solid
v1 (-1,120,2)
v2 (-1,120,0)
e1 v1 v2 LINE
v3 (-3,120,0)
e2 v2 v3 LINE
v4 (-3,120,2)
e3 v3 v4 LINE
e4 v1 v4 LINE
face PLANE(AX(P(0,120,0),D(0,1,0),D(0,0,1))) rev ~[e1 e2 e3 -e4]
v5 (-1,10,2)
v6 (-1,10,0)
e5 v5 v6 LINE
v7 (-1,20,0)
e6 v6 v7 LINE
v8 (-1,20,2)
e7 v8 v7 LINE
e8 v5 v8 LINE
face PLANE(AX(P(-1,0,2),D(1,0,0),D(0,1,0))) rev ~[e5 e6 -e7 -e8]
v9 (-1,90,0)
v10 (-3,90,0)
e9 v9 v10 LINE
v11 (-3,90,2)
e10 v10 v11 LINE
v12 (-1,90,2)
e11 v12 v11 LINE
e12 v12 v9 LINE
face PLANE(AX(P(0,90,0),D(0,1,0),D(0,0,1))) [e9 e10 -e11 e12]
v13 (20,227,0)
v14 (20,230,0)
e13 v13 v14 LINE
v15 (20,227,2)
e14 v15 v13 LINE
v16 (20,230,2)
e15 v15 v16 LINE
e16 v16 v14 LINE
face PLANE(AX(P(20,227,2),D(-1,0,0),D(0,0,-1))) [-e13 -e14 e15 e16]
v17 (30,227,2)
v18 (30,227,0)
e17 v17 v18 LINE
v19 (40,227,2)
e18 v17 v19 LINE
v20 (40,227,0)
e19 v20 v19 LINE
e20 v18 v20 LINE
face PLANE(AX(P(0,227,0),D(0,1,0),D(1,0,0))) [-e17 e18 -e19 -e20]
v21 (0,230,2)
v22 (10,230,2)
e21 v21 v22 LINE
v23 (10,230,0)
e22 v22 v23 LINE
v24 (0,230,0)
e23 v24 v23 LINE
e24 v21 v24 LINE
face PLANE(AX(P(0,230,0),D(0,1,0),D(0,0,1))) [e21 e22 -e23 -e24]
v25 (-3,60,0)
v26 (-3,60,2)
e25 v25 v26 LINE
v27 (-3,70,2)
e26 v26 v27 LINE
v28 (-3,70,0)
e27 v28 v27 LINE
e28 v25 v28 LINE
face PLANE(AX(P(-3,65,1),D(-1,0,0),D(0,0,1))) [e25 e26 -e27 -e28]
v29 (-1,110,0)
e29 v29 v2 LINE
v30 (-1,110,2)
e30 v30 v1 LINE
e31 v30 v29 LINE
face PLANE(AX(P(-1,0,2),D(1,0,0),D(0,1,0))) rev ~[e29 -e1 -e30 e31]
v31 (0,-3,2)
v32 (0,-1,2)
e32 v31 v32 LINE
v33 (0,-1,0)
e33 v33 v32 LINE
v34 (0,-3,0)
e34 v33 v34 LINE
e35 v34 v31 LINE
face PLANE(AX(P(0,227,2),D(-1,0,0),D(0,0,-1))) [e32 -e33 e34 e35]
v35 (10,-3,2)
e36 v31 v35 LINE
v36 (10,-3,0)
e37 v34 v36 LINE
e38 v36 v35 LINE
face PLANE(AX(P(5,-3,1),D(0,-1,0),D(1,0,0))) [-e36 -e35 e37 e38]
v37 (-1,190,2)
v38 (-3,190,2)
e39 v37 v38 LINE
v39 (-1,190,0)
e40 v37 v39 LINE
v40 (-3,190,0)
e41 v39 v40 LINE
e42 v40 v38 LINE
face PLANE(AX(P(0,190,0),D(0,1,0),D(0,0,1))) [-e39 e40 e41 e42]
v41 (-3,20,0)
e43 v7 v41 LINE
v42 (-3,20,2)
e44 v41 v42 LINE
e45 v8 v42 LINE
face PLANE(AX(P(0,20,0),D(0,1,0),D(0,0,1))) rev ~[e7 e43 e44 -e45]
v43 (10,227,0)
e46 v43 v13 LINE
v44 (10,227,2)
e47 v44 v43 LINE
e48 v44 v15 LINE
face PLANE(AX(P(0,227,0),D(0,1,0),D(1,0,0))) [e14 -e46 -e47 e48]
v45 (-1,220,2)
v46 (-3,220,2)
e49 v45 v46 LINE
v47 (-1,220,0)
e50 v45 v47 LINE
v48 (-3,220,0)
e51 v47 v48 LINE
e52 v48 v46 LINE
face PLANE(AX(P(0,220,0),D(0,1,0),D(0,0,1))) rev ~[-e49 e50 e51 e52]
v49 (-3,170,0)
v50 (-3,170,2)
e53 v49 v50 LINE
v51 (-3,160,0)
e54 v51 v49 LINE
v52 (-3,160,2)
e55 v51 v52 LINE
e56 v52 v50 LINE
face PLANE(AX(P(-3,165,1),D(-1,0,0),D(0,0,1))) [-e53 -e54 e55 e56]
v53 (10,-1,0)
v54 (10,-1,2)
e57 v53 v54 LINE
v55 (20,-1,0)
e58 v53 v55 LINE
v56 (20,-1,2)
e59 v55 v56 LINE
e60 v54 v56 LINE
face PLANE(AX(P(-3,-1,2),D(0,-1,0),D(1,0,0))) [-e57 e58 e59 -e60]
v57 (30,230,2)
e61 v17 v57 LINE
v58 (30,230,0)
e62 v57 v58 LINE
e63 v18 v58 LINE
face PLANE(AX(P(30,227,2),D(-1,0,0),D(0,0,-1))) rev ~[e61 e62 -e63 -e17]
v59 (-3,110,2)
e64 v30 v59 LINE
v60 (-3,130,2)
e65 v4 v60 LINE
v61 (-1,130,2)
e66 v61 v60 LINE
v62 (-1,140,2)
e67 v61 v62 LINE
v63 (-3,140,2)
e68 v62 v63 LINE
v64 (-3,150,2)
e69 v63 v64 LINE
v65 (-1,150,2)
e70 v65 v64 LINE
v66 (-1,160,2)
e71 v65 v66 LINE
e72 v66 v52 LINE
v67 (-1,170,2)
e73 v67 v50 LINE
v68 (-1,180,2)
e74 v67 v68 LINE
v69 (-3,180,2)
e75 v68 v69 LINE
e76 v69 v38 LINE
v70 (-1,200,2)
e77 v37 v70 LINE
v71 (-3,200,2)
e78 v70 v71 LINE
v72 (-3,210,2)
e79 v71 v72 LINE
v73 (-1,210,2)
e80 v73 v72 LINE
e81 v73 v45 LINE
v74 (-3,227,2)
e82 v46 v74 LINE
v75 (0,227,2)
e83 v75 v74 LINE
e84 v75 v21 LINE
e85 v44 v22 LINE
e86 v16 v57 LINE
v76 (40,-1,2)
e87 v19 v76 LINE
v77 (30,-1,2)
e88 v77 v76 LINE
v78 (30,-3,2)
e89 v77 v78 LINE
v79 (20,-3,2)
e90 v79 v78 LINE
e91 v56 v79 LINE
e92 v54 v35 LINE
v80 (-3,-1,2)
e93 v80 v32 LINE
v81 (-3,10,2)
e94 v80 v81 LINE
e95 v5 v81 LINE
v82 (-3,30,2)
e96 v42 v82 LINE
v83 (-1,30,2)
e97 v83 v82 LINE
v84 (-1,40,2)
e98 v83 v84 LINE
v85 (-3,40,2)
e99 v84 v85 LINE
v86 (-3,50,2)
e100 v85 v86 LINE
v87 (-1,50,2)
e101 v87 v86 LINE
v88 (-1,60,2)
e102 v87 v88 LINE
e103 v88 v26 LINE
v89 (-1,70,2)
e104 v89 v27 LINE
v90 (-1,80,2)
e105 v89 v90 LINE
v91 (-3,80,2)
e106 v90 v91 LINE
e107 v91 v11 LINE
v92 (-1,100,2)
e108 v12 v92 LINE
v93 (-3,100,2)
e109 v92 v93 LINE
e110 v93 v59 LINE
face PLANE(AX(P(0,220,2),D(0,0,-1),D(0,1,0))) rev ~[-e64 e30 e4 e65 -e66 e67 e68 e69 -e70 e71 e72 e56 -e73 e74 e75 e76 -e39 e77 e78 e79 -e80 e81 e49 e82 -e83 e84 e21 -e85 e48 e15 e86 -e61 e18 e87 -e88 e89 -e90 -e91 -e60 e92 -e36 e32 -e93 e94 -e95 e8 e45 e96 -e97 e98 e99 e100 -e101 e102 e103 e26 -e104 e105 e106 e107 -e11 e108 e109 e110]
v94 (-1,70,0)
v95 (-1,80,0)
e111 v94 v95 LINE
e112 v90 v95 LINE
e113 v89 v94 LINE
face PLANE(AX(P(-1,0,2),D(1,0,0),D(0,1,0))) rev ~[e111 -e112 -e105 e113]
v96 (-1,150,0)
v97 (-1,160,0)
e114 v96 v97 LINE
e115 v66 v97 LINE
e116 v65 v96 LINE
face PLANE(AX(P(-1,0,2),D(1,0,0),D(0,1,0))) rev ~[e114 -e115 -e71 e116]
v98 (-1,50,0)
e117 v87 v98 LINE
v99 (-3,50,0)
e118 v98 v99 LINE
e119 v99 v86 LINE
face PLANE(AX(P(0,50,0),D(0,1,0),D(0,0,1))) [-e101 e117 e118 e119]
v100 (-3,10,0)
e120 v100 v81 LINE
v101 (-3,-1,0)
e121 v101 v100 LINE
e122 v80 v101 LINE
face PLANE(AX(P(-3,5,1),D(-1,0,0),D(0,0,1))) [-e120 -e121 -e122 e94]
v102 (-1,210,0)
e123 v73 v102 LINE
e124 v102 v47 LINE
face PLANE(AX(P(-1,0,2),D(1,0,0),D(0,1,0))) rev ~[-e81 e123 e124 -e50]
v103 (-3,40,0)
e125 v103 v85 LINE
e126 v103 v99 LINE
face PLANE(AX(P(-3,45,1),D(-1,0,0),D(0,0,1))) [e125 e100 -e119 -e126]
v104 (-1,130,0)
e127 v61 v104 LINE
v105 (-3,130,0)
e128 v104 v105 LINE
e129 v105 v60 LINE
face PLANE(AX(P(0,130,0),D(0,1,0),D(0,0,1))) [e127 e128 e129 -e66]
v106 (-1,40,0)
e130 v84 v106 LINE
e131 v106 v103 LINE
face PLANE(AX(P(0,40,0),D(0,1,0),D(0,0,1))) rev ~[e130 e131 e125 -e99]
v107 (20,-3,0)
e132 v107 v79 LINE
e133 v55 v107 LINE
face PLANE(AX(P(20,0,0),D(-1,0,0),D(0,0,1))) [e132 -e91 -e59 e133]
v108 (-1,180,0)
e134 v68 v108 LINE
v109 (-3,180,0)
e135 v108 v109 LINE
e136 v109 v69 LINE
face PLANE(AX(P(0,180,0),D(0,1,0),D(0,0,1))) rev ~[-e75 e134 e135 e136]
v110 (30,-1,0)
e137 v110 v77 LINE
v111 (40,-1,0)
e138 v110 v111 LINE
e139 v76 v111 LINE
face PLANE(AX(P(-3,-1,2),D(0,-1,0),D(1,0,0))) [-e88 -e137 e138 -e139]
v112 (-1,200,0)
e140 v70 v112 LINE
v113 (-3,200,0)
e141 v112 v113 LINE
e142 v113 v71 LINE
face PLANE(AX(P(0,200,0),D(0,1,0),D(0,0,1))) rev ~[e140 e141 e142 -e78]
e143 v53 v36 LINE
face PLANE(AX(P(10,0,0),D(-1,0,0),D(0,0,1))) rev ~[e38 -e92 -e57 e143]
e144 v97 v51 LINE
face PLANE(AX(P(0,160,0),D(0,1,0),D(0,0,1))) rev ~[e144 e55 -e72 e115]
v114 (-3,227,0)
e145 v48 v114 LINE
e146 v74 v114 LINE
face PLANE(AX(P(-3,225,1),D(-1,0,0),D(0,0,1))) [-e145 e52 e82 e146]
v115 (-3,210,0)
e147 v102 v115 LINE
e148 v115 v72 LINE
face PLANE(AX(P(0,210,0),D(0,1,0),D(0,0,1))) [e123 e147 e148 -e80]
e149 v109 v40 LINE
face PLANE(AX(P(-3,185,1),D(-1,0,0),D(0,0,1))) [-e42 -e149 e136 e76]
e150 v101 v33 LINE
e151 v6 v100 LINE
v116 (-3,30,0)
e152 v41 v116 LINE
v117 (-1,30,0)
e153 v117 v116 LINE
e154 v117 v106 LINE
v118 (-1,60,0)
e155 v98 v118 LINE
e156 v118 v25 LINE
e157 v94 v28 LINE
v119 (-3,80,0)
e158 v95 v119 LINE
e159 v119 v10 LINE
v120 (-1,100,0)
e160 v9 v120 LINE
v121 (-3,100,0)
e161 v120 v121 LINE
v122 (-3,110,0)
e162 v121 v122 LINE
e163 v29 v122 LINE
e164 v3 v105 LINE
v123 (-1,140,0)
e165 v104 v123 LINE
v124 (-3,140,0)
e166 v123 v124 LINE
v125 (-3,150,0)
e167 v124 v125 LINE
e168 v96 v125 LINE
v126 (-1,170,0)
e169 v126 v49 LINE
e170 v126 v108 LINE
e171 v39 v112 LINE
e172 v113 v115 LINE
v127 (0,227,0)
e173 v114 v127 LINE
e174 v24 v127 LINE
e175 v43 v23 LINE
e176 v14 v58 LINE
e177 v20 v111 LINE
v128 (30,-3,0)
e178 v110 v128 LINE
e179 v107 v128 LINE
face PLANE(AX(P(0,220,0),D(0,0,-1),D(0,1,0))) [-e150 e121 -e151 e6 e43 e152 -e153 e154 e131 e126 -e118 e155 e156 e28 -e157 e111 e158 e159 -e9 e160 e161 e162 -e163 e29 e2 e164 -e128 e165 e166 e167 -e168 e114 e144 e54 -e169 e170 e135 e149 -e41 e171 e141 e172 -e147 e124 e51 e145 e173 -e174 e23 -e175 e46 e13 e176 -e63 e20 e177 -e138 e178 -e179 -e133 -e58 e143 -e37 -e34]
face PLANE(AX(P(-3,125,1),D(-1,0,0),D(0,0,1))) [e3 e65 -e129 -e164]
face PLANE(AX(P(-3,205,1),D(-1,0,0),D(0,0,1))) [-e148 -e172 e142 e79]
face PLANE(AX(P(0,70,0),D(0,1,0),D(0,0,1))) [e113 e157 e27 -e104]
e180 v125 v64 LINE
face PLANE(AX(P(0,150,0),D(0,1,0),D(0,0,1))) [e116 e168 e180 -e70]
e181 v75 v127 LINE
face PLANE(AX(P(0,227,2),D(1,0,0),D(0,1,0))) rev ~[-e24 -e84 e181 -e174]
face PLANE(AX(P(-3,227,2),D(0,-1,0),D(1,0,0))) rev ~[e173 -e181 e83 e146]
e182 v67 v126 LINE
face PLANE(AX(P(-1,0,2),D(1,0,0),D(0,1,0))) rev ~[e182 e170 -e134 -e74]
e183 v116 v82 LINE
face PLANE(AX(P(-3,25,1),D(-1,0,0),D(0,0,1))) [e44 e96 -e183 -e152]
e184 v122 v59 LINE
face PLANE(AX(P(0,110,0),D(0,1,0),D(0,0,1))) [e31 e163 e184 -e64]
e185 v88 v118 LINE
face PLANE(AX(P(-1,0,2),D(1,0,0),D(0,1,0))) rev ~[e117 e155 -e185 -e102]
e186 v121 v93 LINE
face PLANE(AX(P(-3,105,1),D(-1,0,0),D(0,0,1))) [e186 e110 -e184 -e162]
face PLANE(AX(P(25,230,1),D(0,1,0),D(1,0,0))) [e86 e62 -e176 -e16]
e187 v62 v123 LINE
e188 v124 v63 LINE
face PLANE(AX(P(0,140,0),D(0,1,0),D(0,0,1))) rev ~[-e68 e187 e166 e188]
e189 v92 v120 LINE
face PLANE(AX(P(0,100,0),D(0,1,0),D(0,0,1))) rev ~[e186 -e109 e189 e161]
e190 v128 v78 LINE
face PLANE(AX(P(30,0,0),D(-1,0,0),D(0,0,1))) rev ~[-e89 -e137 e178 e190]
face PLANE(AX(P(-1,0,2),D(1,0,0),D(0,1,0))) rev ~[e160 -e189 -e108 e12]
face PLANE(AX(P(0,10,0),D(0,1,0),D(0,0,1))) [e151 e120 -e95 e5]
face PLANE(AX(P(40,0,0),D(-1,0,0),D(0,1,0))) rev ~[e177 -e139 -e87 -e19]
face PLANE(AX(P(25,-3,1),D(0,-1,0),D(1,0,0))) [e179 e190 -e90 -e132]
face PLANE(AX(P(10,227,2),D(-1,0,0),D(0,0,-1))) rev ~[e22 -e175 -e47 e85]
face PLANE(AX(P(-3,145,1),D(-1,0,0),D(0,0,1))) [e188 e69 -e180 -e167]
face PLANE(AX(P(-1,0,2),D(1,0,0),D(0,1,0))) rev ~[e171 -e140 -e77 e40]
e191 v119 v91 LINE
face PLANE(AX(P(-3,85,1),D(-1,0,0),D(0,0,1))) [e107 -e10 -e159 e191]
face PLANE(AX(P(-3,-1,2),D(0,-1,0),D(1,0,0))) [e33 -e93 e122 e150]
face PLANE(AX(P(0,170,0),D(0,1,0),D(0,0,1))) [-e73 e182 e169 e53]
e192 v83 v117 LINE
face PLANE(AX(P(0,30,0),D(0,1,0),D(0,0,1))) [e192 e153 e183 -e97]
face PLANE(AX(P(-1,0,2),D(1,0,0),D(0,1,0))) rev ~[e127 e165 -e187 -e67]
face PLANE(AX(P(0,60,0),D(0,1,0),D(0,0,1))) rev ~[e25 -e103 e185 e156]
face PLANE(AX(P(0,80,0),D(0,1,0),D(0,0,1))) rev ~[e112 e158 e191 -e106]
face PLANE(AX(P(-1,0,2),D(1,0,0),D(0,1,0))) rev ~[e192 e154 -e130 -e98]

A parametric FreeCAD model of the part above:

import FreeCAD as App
import Part
import Sketcher
from FreeCAD import Vector
Q = App.Units.Quantity

doc = App.newDocument("Part")
body = doc.addObject("PartDesign::Body", "Body")

# Sketch on XY plane
sketch1 = body.newObject("Sketcher::SketchObject", "Sketch")
sketch1.AttachmentSupport = (doc.getObject("XY_Plane"), [""])
sketch1.MapMode = "FlatFace"
sketch1.addGeometry(Part.LineSegment(Vector(0, 227, 0), Vector(0, 0, 0)), False)
sketch1.addGeometry(Part.LineSegment(Vector(0, 0, 0), Vector(40, 0, 0)), False)
sketch1.addGeometry(Part.LineSegment(Vector(40, 0, 0), Vector(40, 227, 0)), False)
sketch1.addGeometry(Part.LineSegment(Vector(40, 227, 0), Vector(0, 227, 0)), False)
sketch1.addConstraint(Sketcher.Constraint("Coincident", 0, 2, 1, 1))
sketch1.addConstraint(Sketcher.Constraint("Coincident", 1, 2, 2, 1))
sketch1.addConstraint(Sketcher.Constraint("Coincident", 2, 2, 3, 1))
sketch1.addConstraint(Sketcher.Constraint("Coincident", 3, 2, 0, 1))
sketch1.addConstraint(Sketcher.Constraint("Vertical", 0))
sketch1.addConstraint(Sketcher.Constraint("Horizontal", 1))
sketch1.addConstraint(Sketcher.Constraint("Vertical", 2))
sketch1.addConstraint(Sketcher.Constraint("Horizontal", 3))
sketch1.addConstraint(Sketcher.Constraint("Coincident", 0, 2, -1, 1))
sketch1.addConstraint(Sketcher.Constraint("DistanceX", 1, 1, 1, 2, Q("40 mm")))
sketch1.addConstraint(Sketcher.Constraint("DistanceY", 0, 2, 0, 1, Q("227 mm")))
pad1 = body.newObject("PartDesign::Pad", "Pad")
pad1.Profile = sketch1
pad1.Length = 2

# Sketch on XZ plane
sketch2 = body.newObject("Sketcher::SketchObject", "Sketch001")
sketch2.AttachmentSupport = (doc.getObject("XZ_Plane"), [""])
sketch2.MapMode = "FlatFace"
sketch2.addGeometry(Part.LineSegment(Vector(20, 2, 0), Vector(20, 0, 0)), False)
sketch2.addGeometry(Part.LineSegment(Vector(20, 0, 0), Vector(30, 0, 0)), False)
sketch2.addGeometry(Part.LineSegment(Vector(30, 0, 0), Vector(30, 2, 0)), False)
sketch2.addGeometry(Part.LineSegment(Vector(30, 2, 0), Vector(20, 2, 0)), False)
sketch2.addConstraint(Sketcher.Constraint("Coincident", 0, 2, 1, 1))
sketch2.addConstraint(Sketcher.Constraint("Coincident", 1, 2, 2, 1))
sketch2.addConstraint(Sketcher.Constraint("Coincident", 2, 2, 3, 1))
sketch2.addConstraint(Sketcher.Constraint("Coincident", 3, 2, 0, 1))
sketch2.addConstraint(Sketcher.Constraint("Vertical", 0))
sketch2.addConstraint(Sketcher.Constraint("Horizontal", 1))
sketch2.addConstraint(Sketcher.Constraint("Vertical", 2))
sketch2.addConstraint(Sketcher.Constraint("Horizontal", 3))
sketch2.addConstraint(Sketcher.Constraint("PointOnObject", 0, 2, -1))
sketch2.addConstraint(Sketcher.Constraint("DistanceX", 1, 1, 1, 2, Q("10 mm")))
sketch2.addConstraint(Sketcher.Constraint("DistanceY", 0, 2, 0, 1, Q("2 mm")))
sketch2.addConstraint(Sketcher.Constraint("DistanceX", -1, 1, 0, 2, Q("20 mm")))
pad2 = body.newObject("PartDesign::Pad", "Pad001")
pad2.Profile = sketch2
pad2.Length = 3
doc.recompute()

linearpattern = body.newObject("PartDesign::LinearPattern", "LinearPattern")
linearpattern.Originals = [pad2]
linearpattern.Direction = (doc.getObject("X_Axis"), [""])
linearpattern.Mode = "offset"
linearpattern.Offset = 20
linearpattern.Occurrences = 2
linearpattern.Reversed = True
body.Tip = linearpattern

# Sketch on XZ plane
sketch3 = body.newObject("Sketcher::SketchObject", "Sketch002")
sketch3.AttachmentSupport = (doc.getObject("XZ_Plane"), [""])
sketch3.MapMode = "FlatFace"
sketch3.AttachmentOffset = App.Placement(Vector(0, 0, -227), App.Rotation())
sketch3.addGeometry(Part.LineSegment(Vector(20, 0, 0), Vector(20, 2, 0)), False)
sketch3.addGeometry(Part.LineSegment(Vector(20, 2, 0), Vector(30, 2, 0)), False)
sketch3.addGeometry(Part.LineSegment(Vector(30, 2, 0), Vector(30, 0, 0)), False)
sketch3.addGeometry(Part.LineSegment(Vector(30, 0, 0), Vector(20, 0, 0)), False)
sketch3.addConstraint(Sketcher.Constraint("Coincident", 0, 2, 1, 1))
sketch3.addConstraint(Sketcher.Constraint("Coincident", 1, 2, 2, 1))
sketch3.addConstraint(Sketcher.Constraint("Coincident", 2, 2, 3, 1))
sketch3.addConstraint(Sketcher.Constraint("Coincident", 3, 2, 0, 1))
sketch3.addConstraint(Sketcher.Constraint("Vertical", 0))
sketch3.addConstraint(Sketcher.Constraint("Horizontal", 1))
sketch3.addConstraint(Sketcher.Constraint("Vertical", 2))
sketch3.addConstraint(Sketcher.Constraint("Horizontal", 3))
sketch3.addConstraint(Sketcher.Constraint("PointOnObject", 2, 2, -1))
sketch3.addConstraint(Sketcher.Constraint("DistanceX", 1, 1, 1, 2, Q("10 mm")))
sketch3.addConstraint(Sketcher.Constraint("DistanceY", 0, 1, 0, 2, Q("2 mm")))
sketch3.addConstraint(Sketcher.Constraint("DistanceX", -1, 1, 0, 2, Q("20 mm")))
pad3 = body.newObject("PartDesign::Pad", "Pad002")
pad3.Profile = sketch3
pad3.Length = 3
pad3.Reversed = True
doc.recompute()

linearpattern2 = body.newObject("PartDesign::LinearPattern", "LinearPattern001")
linearpattern2.Originals = [pad3]
linearpattern2.Direction = (doc.getObject("X_Axis"), [""])
linearpattern2.Mode = "offset"
linearpattern2.Offset = 20
linearpattern2.Occurrences = 2
linearpattern2.Reversed = True
body.Tip = linearpattern2

# Sketch on YZ plane
sketch4 = body.newObject("Sketcher::SketchObject", "Sketch003")
sketch4.AttachmentSupport = (doc.getObject("YZ_Plane"), [""])
sketch4.MapMode = "FlatFace"
sketch4.addGeometry(Part.LineSegment(Vector(10, 0, 0), Vector(0, 0, 0)), False)
sketch4.addGeometry(Part.LineSegment(Vector(0, 0, 0), Vector(0, 2, 0)), False)
sketch4.addGeometry(Part.LineSegment(Vector(0, 2, 0), Vector(10, 2, 0)), False)
sketch4.addGeometry(Part.LineSegment(Vector(10, 2, 0), Vector(10, 0, 0)), False)
sketch4.addConstraint(Sketcher.Constraint("Coincident", 0, 2, 1, 1))
sketch4.addConstraint(Sketcher.Constraint("Coincident", 1, 2, 2, 1))
sketch4.addConstraint(Sketcher.Constraint("Coincident", 2, 2, 3, 1))
sketch4.addConstraint(Sketcher.Constraint("Coincident", 3, 2, 0, 1))
sketch4.addConstraint(Sketcher.Constraint("Horizontal", 0))
sketch4.addConstraint(Sketcher.Constraint("Vertical", 1))
sketch4.addConstraint(Sketcher.Constraint("Horizontal", 2))
sketch4.addConstraint(Sketcher.Constraint("Vertical", 3))
sketch4.addConstraint(Sketcher.Constraint("Coincident", 0, 2, -1, 1))
sketch4.addConstraint(Sketcher.Constraint("DistanceX", 0, 2, 0, 1, Q("10 mm")))
sketch4.addConstraint(Sketcher.Constraint("DistanceY", 1, 1, 1, 2, Q("2 mm")))
pad4 = body.newObject("PartDesign::Pad", "Pad003")
pad4.Profile = sketch4
pad4.Length = 3
pad4.Reversed = True
doc.recompute()

linearpattern3 = body.newObject("PartDesign::LinearPattern", "LinearPattern002")
linearpattern3.Originals = [pad4]
linearpattern3.Direction = (doc.getObject("Y_Axis"), [""])
linearpattern3.Mode = "offset"
linearpattern3.Offset = 20
linearpattern3.Occurrences = 12
body.Tip = linearpattern3

# Sketch on XY plane
sketch5 = body.newObject("Sketcher::SketchObject", "Sketch004")
sketch5.AttachmentSupport = (doc.getObject("XY_Plane"), [""])
sketch5.MapMode = "FlatFace"
sketch5.AttachmentOffset = App.Placement(Vector(0, 0, 2), App.Rotation())
sketch5.addGeometry(Part.LineSegment(Vector(-3, 230, 0), Vector(-3, 227, 0)), False)
sketch5.addGeometry(Part.LineSegment(Vector(-3, 227, 0), Vector(0, 227, 0)), False)
sketch5.addGeometry(Part.LineSegment(Vector(0, 227, 0), Vector(0, 230, 0)), False)
sketch5.addGeometry(Part.LineSegment(Vector(0, 230, 0), Vector(-3, 230, 0)), False)
sketch5.addConstraint(Sketcher.Constraint("Coincident", 0, 2, 1, 1))
sketch5.addConstraint(Sketcher.Constraint("Coincident", 1, 2, 2, 1))
sketch5.addConstraint(Sketcher.Constraint("Coincident", 2, 2, 3, 1))
sketch5.addConstraint(Sketcher.Constraint("Coincident", 3, 2, 0, 1))
sketch5.addConstraint(Sketcher.Constraint("Vertical", 0))
sketch5.addConstraint(Sketcher.Constraint("Horizontal", 1))
sketch5.addConstraint(Sketcher.Constraint("Vertical", 2))
sketch5.addConstraint(Sketcher.Constraint("Horizontal", 3))
sketch5.addConstraint(Sketcher.Constraint("PointOnObject", 1, 2, -2))
sketch5.addConstraint(Sketcher.Constraint("Equal", 3, 0))
sketch5.addConstraint(Sketcher.Constraint("DistanceX", 1, 1, 1, 2, Q("3 mm")))
sketch5.addConstraint(Sketcher.Constraint("DistanceY", -1, 1, 0, 2, Q("227 mm")))
pocket1 = body.newObject("PartDesign::Pocket", "Pocket")
pocket1.Profile = sketch5
pocket1.Type = "ThroughAll"

# Sketch on XY plane
sketch6 = body.newObject("Sketcher::SketchObject", "Sketch005")
sketch6.AttachmentSupport = (doc.getObject("XY_Plane"), [""])
sketch6.MapMode = "FlatFace"
sketch6.AttachmentOffset = App.Placement(Vector(0, 0, 2), App.Rotation())
sketch6.addGeometry(Part.LineSegment(Vector(-1, 227, 0), Vector(-1, 0, 0)), False)
sketch6.addGeometry(Part.LineSegment(Vector(-1, 0, 0), Vector(-3, 0, 0)), False)
sketch6.addGeometry(Part.LineSegment(Vector(-3, 0, 0), Vector(-3, -1, 0)), False)
sketch6.addGeometry(Part.LineSegment(Vector(-3, -1, 0), Vector(40, -1, 0)), False)
sketch6.addGeometry(Part.LineSegment(Vector(40, -1, 0), Vector(40, 0, 0)), False)
sketch6.addGeometry(Part.LineSegment(Vector(40, 0, 0), Vector(0, 0, 0)), False)
sketch6.addGeometry(Part.LineSegment(Vector(0, 0, 0), Vector(0, 227, 0)), False)
sketch6.addGeometry(Part.LineSegment(Vector(0, 227, 0), Vector(-1, 227, 0)), False)
sketch6.addConstraint(Sketcher.Constraint("Coincident", 0, 2, 1, 1))
sketch6.addConstraint(Sketcher.Constraint("Coincident", 1, 2, 2, 1))
sketch6.addConstraint(Sketcher.Constraint("Coincident", 2, 2, 3, 1))
sketch6.addConstraint(Sketcher.Constraint("Coincident", 3, 2, 4, 1))
sketch6.addConstraint(Sketcher.Constraint("Coincident", 4, 2, 5, 1))
sketch6.addConstraint(Sketcher.Constraint("Coincident", 5, 2, 6, 1))
sketch6.addConstraint(Sketcher.Constraint("Coincident", 6, 2, 7, 1))
sketch6.addConstraint(Sketcher.Constraint("Coincident", 7, 2, 0, 1))
sketch6.addConstraint(Sketcher.Constraint("Vertical", 0))
sketch6.addConstraint(Sketcher.Constraint("Horizontal", 1))
sketch6.addConstraint(Sketcher.Constraint("Vertical", 2))
sketch6.addConstraint(Sketcher.Constraint("Horizontal", 3))
sketch6.addConstraint(Sketcher.Constraint("Vertical", 4))
sketch6.addConstraint(Sketcher.Constraint("Horizontal", 5))
sketch6.addConstraint(Sketcher.Constraint("Vertical", 6))
sketch6.addConstraint(Sketcher.Constraint("Horizontal", 7))
sketch6.addConstraint(Sketcher.Constraint("Coincident", 5, 2, -1, 1))
sketch6.addConstraint(Sketcher.Constraint("PointOnObject", 0, 2, -1))
sketch6.addConstraint(Sketcher.Constraint("Equal", 7, 2))
sketch6.addConstraint(Sketcher.Constraint("DistanceX", 1, 2, 1, 1, Q("2 mm")))
sketch6.addConstraint(Sketcher.Constraint("DistanceX", 3, 1, 3, 2, Q("43 mm")))
sketch6.addConstraint(Sketcher.Constraint("DistanceX", 5, 2, 5, 1, Q("40 mm")))
sketch6.addConstraint(Sketcher.Constraint("DistanceY", 0, 2, 0, 1, Q("227 mm")))
pad5 = body.newObject("PartDesign::Pad", "Pad004")
pad5.Profile = sketch6
pad5.Length = 2
pad5.Reversed = True

doc.recompute()
